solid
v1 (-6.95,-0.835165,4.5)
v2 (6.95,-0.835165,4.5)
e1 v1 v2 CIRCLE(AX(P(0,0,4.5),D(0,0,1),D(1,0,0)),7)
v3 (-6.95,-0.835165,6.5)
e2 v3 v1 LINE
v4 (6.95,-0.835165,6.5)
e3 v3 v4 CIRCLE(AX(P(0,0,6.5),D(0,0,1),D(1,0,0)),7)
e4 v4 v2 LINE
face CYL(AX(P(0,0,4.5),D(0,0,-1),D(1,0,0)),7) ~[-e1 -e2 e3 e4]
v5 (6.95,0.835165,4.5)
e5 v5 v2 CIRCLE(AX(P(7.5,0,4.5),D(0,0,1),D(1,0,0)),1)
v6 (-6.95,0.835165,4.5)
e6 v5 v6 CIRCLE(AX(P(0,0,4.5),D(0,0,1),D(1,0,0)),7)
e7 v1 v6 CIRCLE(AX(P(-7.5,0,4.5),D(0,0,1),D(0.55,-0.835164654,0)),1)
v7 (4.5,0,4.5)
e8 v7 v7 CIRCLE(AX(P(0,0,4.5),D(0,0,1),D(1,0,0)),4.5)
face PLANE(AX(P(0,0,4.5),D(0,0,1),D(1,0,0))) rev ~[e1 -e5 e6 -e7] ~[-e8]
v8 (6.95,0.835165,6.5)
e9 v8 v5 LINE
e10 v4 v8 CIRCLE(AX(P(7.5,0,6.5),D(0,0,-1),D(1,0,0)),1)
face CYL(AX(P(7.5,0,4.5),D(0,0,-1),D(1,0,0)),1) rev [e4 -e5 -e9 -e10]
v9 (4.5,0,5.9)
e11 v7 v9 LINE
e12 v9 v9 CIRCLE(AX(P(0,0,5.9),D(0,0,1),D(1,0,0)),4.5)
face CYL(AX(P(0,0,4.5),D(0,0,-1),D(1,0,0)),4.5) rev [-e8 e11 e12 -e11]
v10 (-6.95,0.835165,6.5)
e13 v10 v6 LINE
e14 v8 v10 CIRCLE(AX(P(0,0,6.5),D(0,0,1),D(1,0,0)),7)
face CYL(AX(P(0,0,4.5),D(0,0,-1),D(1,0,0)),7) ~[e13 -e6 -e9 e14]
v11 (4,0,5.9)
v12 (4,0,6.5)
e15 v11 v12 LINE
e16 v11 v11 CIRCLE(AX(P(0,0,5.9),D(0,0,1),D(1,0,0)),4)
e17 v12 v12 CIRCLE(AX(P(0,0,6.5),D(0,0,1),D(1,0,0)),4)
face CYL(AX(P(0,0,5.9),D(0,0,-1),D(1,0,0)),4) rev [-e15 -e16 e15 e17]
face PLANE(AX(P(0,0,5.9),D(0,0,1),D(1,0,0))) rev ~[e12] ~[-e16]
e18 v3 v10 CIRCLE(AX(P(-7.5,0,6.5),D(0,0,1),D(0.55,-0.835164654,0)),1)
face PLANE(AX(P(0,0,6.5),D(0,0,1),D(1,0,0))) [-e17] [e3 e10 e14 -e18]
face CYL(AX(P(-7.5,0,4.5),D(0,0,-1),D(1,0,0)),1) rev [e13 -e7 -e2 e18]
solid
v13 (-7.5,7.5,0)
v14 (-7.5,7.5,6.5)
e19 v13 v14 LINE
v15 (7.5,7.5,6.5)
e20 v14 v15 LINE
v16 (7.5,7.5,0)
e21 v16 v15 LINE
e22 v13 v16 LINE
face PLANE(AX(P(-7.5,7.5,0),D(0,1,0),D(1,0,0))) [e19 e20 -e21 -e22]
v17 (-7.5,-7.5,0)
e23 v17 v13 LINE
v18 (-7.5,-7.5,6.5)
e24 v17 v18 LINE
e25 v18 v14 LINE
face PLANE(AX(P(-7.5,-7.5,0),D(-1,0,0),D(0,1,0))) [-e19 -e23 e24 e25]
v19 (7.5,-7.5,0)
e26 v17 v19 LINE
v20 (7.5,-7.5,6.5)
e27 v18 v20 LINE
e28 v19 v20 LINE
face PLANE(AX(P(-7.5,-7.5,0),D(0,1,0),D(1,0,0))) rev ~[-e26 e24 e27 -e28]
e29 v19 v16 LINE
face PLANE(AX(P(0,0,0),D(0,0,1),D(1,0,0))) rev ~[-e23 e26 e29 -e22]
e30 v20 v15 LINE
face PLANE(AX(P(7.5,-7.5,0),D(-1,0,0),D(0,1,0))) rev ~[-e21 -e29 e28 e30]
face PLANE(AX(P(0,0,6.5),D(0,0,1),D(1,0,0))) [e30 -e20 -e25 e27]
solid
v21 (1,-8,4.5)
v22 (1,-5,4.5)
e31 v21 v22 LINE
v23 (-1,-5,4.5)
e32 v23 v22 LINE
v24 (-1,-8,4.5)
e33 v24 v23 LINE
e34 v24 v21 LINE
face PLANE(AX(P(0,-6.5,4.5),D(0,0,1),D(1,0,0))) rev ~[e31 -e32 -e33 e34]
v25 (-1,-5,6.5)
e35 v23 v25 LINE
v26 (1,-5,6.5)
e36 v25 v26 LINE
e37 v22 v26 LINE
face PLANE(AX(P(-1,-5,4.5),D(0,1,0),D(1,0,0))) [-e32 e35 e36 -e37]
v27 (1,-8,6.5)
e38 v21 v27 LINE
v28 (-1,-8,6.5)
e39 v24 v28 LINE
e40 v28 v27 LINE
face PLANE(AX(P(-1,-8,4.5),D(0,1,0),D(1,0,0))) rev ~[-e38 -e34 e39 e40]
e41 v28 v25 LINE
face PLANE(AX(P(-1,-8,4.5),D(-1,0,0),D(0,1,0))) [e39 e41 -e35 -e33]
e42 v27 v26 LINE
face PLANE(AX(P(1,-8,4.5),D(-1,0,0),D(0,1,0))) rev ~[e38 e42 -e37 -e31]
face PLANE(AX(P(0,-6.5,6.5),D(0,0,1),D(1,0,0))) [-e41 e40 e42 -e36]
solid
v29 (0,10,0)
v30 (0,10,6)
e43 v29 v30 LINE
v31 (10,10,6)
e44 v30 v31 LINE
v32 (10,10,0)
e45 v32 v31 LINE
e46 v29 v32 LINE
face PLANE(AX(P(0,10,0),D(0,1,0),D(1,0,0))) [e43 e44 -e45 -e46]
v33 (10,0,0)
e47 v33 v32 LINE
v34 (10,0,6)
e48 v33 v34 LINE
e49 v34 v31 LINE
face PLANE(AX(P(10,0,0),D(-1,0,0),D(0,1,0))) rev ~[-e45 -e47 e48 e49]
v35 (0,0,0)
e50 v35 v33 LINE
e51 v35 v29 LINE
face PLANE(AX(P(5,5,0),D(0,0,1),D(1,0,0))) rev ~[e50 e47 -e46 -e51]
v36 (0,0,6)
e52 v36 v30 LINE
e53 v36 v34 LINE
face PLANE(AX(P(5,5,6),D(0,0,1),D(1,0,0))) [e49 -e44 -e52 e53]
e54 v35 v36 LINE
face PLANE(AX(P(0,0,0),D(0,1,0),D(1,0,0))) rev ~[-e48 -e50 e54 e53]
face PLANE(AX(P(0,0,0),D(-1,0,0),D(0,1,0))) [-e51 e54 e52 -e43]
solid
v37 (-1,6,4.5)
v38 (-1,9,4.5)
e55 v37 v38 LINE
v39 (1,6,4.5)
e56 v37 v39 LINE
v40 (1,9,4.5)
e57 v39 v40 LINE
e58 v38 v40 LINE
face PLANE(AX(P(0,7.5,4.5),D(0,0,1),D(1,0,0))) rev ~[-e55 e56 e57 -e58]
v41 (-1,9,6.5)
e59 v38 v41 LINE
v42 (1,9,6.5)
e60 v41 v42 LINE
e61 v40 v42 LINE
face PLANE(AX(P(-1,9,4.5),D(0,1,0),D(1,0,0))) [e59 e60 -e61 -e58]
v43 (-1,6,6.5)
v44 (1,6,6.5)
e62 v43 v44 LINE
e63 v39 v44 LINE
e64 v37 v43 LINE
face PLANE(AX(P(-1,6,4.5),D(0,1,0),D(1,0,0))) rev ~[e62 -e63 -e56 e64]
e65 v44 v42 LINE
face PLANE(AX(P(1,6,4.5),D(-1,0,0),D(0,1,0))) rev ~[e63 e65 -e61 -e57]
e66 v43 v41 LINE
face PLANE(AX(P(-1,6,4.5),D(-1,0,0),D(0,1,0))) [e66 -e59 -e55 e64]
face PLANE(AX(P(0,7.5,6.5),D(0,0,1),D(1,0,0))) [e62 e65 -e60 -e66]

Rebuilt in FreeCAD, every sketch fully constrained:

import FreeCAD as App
import Part
import Sketcher

V = App.Vector

doc = App.newDocument("Part")
body = doc.addObject("PartDesign::Body", "Body")

sketch1 = body.newObject("Sketcher::SketchObject", "Sketch")
sketch1.AttachmentSupport = (doc.getObject("XY_Plane"), [""])
sketch1.MapMode = "FlatFace"
sketch1.addGeometry([
    Part.LineSegment(V(-8, 8, 0), V(-8, -8, 0)),
    Part.LineSegment(V(-8, -8, 0), V(8, -8, 0)),
    Part.LineSegment(V(8, -8, 0), V(8, 8, 0)),
    Part.LineSegment(V(8, 8, 0), V(-8, 8, 0)),
], False)
sketch1.addConstraint([
    Sketcher.Constraint("Coincident", 0, 2, 1, 1),
    Sketcher.Constraint("Coincident", 1, 2, 2, 1),
    Sketcher.Constraint("Coincident", 2, 2, 3, 1),
    Sketcher.Constraint("Coincident", 3, 2, 0, 1),
    Sketcher.Constraint("Vertical", 0),
    Sketcher.Constraint("Horizontal", 1),
    Sketcher.Constraint("Vertical", 2),
    Sketcher.Constraint("Horizontal", 3),
    Sketcher.Constraint("Symmetric", 0, 2, 2, 2, -1, 1),
    Sketcher.Constraint("Equal", 3, 0),
    Sketcher.Constraint("DistanceX", 1, 1, 1, 2, 15.0),
])
pad1 = body.newObject("PartDesign::Pad", "Pad")
pad1.Profile = sketch1
pad1.Length = 6.5
body2 = doc.addObject("PartDesign::Body", "Body001")

sketch2 = body2.newObject("Sketcher::SketchObject", "Sketch001")
sketch2.AttachmentSupport = (doc.getObject("XY_Plane001"), [""])
sketch2.MapMode = "FlatFace"
sketch2.AttachmentOffset = App.Placement(V(0, 0, 4.5), App.Rotation())
sketch2.addGeometry([
    Part.LineSegment(V(-1, -5, 0), V(-1, -8, 0)),
    Part.LineSegment(V(-1, -8, 0), V(1, -8, 0)),
    Part.LineSegment(V(1, -8, 0), V(1, -5, 0)),
    Part.LineSegment(V(1, -5, 0), V(-1, -5, 0)),
], False)
sketch2.addConstraint([
    Sketcher.Constraint("Coincident", 0, 2, 1, 1),
    Sketcher.Constraint("Coincident", 1, 2, 2, 1),
    Sketcher.Constraint("Coincident", 2, 2, 3, 1),
    Sketcher.Constraint("Coincident", 3, 2, 0, 1),
    Sketcher.Constraint("Vertical", 0),
    Sketcher.Constraint("Horizontal", 1),
    Sketcher.Constraint("Vertical", 2),
    Sketcher.Constraint("Horizontal", 3),
    Sketcher.Constraint("DistanceX", 1, 1, 1, 2, 2.0),
    Sketcher.Constraint("DistanceY", 0, 2, 0, 1, 3.0),
    Sketcher.Constraint("DistanceX", 0, 2, -1, 1, 1.0),
    Sketcher.Constraint("DistanceY", 0, 2, -1, 1, 8.0),
])
pad2 = body2.newObject("PartDesign::Pad", "Pad001")
pad2.Profile = sketch2
pad2.Length = 2
body3 = doc.addObject("PartDesign::Body", "Body002")

sketch3 = body3.newObject("Sketcher::SketchObject", "Sketch002")
sketch3.AttachmentSupport = (doc.getObject("XY_Plane002"), [""])
sketch3.MapMode = "FlatFace"
sketch3.AttachmentOffset = App.Placement(V(0, 0, 4.5), App.Rotation())
sketch3.addGeometry([
    Part.LineSegment(V(-1, 9, 0), V(-1, 6, 0)),
    Part.LineSegment(V(-1, 6, 0), V(1, 6, 0)),
    Part.LineSegment(V(1, 6, 0), V(1, 9, 0)),
    Part.LineSegment(V(1, 9, 0), V(-1, 9, 0)),
], False)
sketch3.addConstraint([
    Sketcher.Constraint("Coincident", 0, 2, 1, 1),
    Sketcher.Constraint("Coincident", 1, 2, 2, 1),
    Sketcher.Constraint("Coincident", 2, 2, 3, 1),
    Sketcher.Constraint("Coincident", 3, 2, 0, 1),
    Sketcher.Constraint("Vertical", 0),
    Sketcher.Constraint("Horizontal", 1),
    Sketcher.Constraint("Vertical", 2),
    Sketcher.Constraint("Horizontal", 3),
    Sketcher.Constraint("DistanceX", 1, 1, 1, 2, 2.0),
    Sketcher.Constraint("DistanceY", 0, 2, 0, 1, 3.0),
    Sketcher.Constraint("DistanceX", 0, 2, -1, 1, 1.0),
    Sketcher.Constraint("DistanceY", -1, 1, 0, 2, 6.0),
])
pad3 = body3.newObject("PartDesign::Pad", "Pad002")
pad3.Profile = sketch3
pad3.Length = 2
body4 = doc.addObject("PartDesign::Body", "Body003")

sketch4 = body4.newObject("Sketcher::SketchObject", "Sketch003")
sketch4.AttachmentSupport = (doc.getObject("XY_Plane003"), [""])
sketch4.MapMode = "FlatFace"
sketch4.addGeometry(Part.Circle(V(0, 0, 0), V(0, 0, 1), 4.5), False)
sketch4.addConstraint([
    Sketcher.Constraint("Coincident", 0, 3, -1, 1),
    Sketcher.Constraint("Diameter", 0, 9.0),
])
pad4 = body4.newObject("PartDesign::Pad", "Pad003")
pad4.Profile = sketch4
pad4.Length = 1.4
body5 = doc.addObject("PartDesign::Body", "Body004")

sketch5 = body5.newObject("Sketcher::SketchObject", "Sketch004")
sketch5.AttachmentSupport = (doc.getObject("XY_Plane004"), [""])
sketch5.MapMode = "FlatFace"
sketch5.addGeometry(Part.Circle(V(7.5, 0, 0), V(0, 0, 1), 1), False)
sketch5.addConstraint([
    Sketcher.Constraint("PointOnObject", 0, 3, -1),
    Sketcher.Constraint("Diameter", 0, 2.0),
    Sketcher.Constraint("DistanceX", -1, 1, 0, 3, 7.5),
])
pad5 = body5.newObject("PartDesign::Pad", "Pad004")
pad5.Profile = sketch5
pad5.Length = 10
body6 = doc.addObject("PartDesign::Body", "Body005")

sketch6 = body6.newObject("Sketcher::SketchObject", "Sketch005")
sketch6.AttachmentSupport = (doc.getObject("XY_Plane005"), [""])
sketch6.MapMode = "FlatFace"
sketch6.addGeometry(Part.Circle(V(-7.5, 0, 0), V(0, 0, 1), 1), False)
sketch6.addConstraint([
    Sketcher.Constraint("PointOnObject", 0, 3, -1),
    Sketcher.Constraint("Diameter", 0, 2.0),
    Sketcher.Constraint("DistanceX", 0, 3, -1, 1, 7.5),
])
pad6 = body6.newObject("PartDesign::Pad", "Pad005")
pad6.Profile = sketch6
pad6.Length = 10
body7 = doc.addObject("PartDesign::Body", "Body006")
body7.AllowCompound = True

sketch7 = body7.newObject("Sketcher::SketchObject", "Sketch006")
sketch7.AttachmentSupport = (doc.getObject("XY_Plane006"), [""])
sketch7.MapMode = "FlatFace"
sketch7.AttachmentOffset = App.Placement(V(0, 0, 1.4), App.Rotation())
sketch7.addGeometry(Part.Circle(V(0, 0, 0), V(0, 0, 1), 4), False)
sketch7.addConstraint([
    Sketcher.Constraint("Coincident", 0, 3, -1, 1),
    Sketcher.Constraint("Diameter", 0, 8.0),
])
pad7 = body7.newObject("PartDesign::Pad", "Pad006")
pad7.Profile = sketch7
pad7.Length = 0.6
doc.recompute()

boolean = body7.newObject("PartDesign::Boolean", "Boolean")
boolean.Type = "Fuse"
boolean.addObjects([body4])
doc.recompute()

boolean2 = body7.newObject("PartDesign::Boolean", "Boolean001")
boolean2.Type = "Fuse"
boolean2.addObjects([body5])
doc.recompute()

boolean3 = body7.newObject("PartDesign::Boolean", "Boolean002")
boolean3.Type = "Fuse"
boolean3.addObjects([body6])
body8 = doc.addObject("PartDesign::Body", "Body007")

sketch8 = body8.newObject("Sketcher::SketchObject", "Sketch007")
sketch8.AttachmentSupport = (doc.getObject("XY_Plane007"), [""])
sketch8.MapMode = "FlatFace"
sketch8.addGeometry(Part.Circle(V(0, 0, 0), V(0, 0, 1), 7), False)
sketch8.addConstraint([
    Sketcher.Constraint("Coincident", 0, 3, -1, 1),
    Sketcher.Constraint("Diameter", 0, 14.0),
])
pad8 = body8.newObject("PartDesign::Pad", "Pad007")
pad8.Profile = sketch8
pad8.Length = 2
doc.recompute()

boolean4 = body8.newObject("PartDesign::Boolean", "Boolean003")
boolean4.Type = "Cut"
boolean4.addObjects([body7])
body9 = doc.addObject("PartDesign::Body", "Body008")
doc.recompute()

body8.Placement = App.Placement(V(0, 0, 4.5), App.Rotation(V(0, 0, 1), 0))
boolean5 = body9.newObject("PartDesign::Boolean", "Boolean004")
boolean5.Type = "Fuse"
boolean5.addObjects([body8])
body10 = doc.addObject("PartDesign::Body", "Body009")

sketch9 = body10.newObject("Sketcher::SketchObject", "Sketch008")
sketch9.AttachmentSupport = (doc.getObject("XY_Plane009"), [""])
sketch9.MapMode = "FlatFace"
sketch9.addGeometry([
    Part.LineSegment(V(0, 10, 0), V(0, 0, 0)),
    Part.LineSegment(V(0, 0, 0), V(10, 0, 0)),
    Part.LineSegment(V(10, 0, 0), V(10, 10, 0)),
    Part.LineSegment(V(10, 10, 0), V(0, 10, 0)),
], False)
sketch9.addConstraint([
    Sketcher.Constraint("Coincident", 0, 2, 1, 1),
    Sketcher.Constraint("Coincident", 1, 2, 2, 1),
    Sketcher.Constraint("Coincident", 2, 2, 3, 1),
    Sketcher.Constraint("Coincident", 3, 2, 0, 1),
    Sketcher.Constraint("Vertical", 0),
    Sketcher.Constraint("Horizontal", 1),
    Sketcher.Constraint("Vertical", 2),
    Sketcher.Constraint("Horizontal", 3),
    Sketcher.Constraint("Coincident", 0, 2, -1, 1),
    Sketcher.Constraint("Equal", 3, 0),
    Sketcher.Constraint("DistanceX", 1, 1, 1, 2, 10.0),
])
pad9 = body10.newObject("PartDesign::Pad", "Pad008")
pad9.Profile = sketch9
pad9.Length = 6

doc.recompute()
